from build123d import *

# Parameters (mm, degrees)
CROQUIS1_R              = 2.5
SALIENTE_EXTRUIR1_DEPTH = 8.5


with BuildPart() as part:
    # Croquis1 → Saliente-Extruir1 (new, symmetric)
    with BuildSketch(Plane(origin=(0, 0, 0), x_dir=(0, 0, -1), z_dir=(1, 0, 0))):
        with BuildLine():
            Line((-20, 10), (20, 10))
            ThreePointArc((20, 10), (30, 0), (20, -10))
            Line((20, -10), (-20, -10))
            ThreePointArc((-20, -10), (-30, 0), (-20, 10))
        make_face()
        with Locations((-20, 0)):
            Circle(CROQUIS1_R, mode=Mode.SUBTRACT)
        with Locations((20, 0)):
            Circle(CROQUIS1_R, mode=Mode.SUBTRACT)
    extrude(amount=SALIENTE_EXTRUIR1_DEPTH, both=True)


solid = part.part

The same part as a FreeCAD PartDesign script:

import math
import FreeCAD as App
import Part
import Sketcher

V = App.Vector

doc = App.newDocument("Part")
body = doc.addObject("PartDesign::Body", "Body")

# Sketch on YZ plane
sketch1 = doc.addObject("Sketcher::SketchObject", "Sketch")
body.addObject(sketch1)
sketch1.AttachmentSupport = (doc.YZ_Plane, [""])
sketch1.MapMode = "FlatFace"
sketch1.addGeometry(Part.LineSegment(V(10, -20, 0), V(10, 20, 0)), False)
sketch1.addGeometry(Part.ArcOfCircle(Part.Circle(V(0, 20, 0), V(0, 0, 1), 10), math.radians(0), math.radians(180)), False)
sketch1.addGeometry(Part.LineSegment(V(-10, 20, 0), V(-10, -20, 0)), False)
sketch1.addGeometry(Part.ArcOfCircle(Part.Circle(V(0, -20, 0), V(0, 0, 1), 10), math.radians(180), math.radians(360)), False)
sketch1.addGeometry(Part.Circle(V(0, -20, 0), V(0, 0, 1), 2.5), False)
sketch1.addGeometry(Part.Circle(V(0, 20, 0), V(0, 0, 1), 2.5), False)
sketch1.addConstraint(Sketcher.Constraint("Tangent", 0, 2, 1, 1))
sketch1.addConstraint(Sketcher.Constraint("Tangent", 1, 2, 2, 1))
sketch1.addConstraint(Sketcher.Constraint("Tangent", 2, 2, 3, 1))
sketch1.addConstraint(Sketcher.Constraint("Tangent", 3, 2, 0, 1))
sketch1.addConstraint(Sketcher.Constraint("Vertical", 0))
sketch1.addConstraint(Sketcher.Constraint("Vertical", 2))
sketch1.addConstraint(Sketcher.Constraint("Coincident", 4, 3, 3, 3))
sketch1.addConstraint(Sketcher.Constraint("Coincident", 5, 3, 1, 3))
sketch1.addConstraint(Sketcher.Constraint("Equal", 4, 5))
sketch1.addConstraint(Sketcher.Constraint("Symmetric", 1, 3, 3, 3, -1, 1))
sketch1.addConstraint(Sketcher.Constraint("Diameter", 4, 5.0))
sketch1.addConstraint(Sketcher.Constraint("Radius", 1, 10.0))
sketch1.addConstraint(Sketcher.Constraint("DistanceY", 0, 1, 0, 2, 40.0))
pad1 = doc.addObject("PartDesign::Pad", "Pad")
body.addObject(pad1)
pad1.Profile = sketch1
pad1.Length = 17
pad1.Midplane = True

doc.recompute()
